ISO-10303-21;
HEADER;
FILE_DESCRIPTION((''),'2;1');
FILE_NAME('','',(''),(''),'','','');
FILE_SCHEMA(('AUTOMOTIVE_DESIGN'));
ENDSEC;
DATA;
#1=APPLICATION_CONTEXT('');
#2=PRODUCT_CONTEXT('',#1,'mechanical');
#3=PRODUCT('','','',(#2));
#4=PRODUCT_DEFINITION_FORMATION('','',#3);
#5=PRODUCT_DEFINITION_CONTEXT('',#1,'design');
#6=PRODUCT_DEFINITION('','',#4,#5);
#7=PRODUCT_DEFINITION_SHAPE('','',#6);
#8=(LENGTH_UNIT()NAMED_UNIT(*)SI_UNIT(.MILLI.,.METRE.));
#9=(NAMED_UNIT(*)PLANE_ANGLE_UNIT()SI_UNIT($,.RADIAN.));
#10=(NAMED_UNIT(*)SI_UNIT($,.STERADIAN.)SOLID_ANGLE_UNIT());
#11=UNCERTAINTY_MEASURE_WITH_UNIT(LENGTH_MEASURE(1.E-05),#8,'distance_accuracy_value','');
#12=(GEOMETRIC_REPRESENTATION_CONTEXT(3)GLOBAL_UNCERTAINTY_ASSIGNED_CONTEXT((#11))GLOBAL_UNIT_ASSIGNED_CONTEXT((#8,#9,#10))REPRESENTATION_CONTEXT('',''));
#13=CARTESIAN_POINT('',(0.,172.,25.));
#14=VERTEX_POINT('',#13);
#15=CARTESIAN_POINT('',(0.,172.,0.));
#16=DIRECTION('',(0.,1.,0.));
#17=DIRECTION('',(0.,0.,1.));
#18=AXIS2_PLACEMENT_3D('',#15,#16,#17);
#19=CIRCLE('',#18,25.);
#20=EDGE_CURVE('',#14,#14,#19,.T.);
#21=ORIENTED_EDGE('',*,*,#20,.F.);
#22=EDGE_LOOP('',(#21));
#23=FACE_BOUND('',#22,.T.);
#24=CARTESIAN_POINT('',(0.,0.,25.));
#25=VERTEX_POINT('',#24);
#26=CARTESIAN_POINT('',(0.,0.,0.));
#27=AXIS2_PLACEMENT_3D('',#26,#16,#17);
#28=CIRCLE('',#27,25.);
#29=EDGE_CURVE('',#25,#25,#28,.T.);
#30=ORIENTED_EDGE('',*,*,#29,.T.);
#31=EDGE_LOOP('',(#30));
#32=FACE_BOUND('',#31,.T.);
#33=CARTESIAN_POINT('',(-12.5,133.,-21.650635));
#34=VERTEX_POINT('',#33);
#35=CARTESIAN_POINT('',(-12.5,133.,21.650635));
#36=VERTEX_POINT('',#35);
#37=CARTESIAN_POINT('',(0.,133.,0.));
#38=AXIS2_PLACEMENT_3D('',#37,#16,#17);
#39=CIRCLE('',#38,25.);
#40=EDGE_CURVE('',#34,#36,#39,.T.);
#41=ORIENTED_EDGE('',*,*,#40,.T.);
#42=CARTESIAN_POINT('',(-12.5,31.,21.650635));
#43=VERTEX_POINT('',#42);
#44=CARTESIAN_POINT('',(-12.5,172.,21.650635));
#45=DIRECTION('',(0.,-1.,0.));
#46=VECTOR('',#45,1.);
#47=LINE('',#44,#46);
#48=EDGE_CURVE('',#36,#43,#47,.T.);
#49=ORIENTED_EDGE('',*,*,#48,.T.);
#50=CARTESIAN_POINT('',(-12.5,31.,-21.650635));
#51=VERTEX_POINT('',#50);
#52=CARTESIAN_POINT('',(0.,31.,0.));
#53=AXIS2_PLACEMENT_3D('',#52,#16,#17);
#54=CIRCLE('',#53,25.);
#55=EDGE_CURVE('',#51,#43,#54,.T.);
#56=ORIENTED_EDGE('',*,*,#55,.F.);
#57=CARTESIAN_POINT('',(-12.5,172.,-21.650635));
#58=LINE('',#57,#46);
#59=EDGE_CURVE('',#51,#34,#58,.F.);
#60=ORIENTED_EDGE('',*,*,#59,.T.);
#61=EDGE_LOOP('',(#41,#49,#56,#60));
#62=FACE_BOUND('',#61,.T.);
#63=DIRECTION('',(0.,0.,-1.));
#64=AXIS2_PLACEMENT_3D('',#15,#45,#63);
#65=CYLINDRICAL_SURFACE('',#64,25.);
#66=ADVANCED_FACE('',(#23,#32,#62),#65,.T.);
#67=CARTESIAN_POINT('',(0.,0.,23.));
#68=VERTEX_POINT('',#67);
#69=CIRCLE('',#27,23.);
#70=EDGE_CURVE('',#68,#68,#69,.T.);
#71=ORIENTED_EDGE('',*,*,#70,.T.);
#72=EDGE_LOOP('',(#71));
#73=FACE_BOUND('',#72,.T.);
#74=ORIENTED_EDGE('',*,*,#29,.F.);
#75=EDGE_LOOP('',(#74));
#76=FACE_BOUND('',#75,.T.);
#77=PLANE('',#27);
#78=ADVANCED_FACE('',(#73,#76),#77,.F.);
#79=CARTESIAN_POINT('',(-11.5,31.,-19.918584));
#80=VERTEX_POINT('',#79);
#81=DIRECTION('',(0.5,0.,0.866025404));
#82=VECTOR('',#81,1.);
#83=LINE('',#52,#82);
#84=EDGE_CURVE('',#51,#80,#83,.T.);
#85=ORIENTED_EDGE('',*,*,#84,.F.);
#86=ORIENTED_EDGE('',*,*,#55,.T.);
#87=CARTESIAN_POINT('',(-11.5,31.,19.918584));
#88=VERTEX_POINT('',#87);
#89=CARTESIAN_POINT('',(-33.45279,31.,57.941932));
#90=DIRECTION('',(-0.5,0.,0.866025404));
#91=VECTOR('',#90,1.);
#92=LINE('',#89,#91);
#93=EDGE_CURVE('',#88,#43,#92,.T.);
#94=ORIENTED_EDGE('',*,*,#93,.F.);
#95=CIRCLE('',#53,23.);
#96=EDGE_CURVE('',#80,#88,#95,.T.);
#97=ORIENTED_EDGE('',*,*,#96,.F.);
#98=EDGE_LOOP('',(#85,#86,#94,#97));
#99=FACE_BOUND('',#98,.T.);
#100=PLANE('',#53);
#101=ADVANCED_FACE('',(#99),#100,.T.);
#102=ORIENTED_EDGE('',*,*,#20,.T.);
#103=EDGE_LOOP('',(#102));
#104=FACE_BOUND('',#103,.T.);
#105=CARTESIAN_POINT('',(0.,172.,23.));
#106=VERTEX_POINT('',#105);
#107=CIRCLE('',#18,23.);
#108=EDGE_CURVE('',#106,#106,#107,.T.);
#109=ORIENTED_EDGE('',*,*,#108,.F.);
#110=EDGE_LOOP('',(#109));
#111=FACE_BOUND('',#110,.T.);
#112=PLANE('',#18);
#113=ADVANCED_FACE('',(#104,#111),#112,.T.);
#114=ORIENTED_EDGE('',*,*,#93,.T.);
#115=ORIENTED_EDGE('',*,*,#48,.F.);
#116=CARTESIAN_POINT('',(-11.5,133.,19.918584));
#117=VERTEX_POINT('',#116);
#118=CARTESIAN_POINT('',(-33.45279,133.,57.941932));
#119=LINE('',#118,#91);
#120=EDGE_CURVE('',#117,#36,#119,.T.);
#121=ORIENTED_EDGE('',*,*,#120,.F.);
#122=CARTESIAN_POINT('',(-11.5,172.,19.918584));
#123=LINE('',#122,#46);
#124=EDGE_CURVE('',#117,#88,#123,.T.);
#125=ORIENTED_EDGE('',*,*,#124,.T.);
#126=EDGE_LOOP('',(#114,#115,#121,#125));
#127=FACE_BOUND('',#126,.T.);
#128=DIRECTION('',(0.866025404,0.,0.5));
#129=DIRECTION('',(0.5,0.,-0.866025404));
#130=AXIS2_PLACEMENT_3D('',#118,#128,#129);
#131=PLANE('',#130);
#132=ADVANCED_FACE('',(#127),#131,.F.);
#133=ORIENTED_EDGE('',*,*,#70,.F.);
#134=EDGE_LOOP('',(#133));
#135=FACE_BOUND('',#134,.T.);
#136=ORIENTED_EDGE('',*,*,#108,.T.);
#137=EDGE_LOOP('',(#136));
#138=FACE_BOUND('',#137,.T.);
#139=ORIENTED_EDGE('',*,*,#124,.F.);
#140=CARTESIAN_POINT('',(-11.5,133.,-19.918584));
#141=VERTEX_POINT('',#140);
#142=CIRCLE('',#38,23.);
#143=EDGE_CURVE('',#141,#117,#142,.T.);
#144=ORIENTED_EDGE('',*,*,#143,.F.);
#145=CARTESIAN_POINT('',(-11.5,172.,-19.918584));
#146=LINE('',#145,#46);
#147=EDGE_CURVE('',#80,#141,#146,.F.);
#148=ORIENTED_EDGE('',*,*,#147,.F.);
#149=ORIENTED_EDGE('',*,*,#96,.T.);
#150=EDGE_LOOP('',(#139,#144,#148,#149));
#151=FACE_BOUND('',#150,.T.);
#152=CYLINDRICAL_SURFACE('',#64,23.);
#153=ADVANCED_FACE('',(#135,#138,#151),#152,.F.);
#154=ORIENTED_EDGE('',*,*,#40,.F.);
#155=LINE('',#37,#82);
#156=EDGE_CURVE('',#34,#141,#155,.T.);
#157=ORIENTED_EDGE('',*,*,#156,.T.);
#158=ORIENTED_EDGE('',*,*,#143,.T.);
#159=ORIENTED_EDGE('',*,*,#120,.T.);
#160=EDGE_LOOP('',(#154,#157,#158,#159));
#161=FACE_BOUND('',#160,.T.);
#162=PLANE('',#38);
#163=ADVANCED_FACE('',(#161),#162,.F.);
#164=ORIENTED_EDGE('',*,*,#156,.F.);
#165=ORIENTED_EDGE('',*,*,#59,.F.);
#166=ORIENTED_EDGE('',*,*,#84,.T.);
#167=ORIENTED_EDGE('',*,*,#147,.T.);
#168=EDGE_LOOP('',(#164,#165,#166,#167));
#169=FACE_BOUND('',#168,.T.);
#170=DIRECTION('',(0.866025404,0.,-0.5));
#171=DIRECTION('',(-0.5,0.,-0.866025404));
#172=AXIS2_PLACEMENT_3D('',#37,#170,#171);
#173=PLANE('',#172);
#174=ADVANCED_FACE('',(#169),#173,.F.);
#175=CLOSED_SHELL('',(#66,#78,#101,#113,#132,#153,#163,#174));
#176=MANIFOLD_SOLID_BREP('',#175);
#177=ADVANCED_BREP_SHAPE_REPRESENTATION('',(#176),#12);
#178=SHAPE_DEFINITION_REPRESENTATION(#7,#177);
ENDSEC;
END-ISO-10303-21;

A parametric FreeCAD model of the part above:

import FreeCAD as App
import Part
import Sketcher

V = App.Vector
Q = App.Units.Quantity

doc = App.newDocument("Part")
body = doc.addObject("PartDesign::Body", "Body")

# Sketch on XZ plane
sketch1 = body.newObject("Sketcher::SketchObject", "Sketch")
sketch1.AttachmentSupport = (doc.getObject("XZ_Plane"), [""])
sketch1.MapMode = "FlatFace"
sketch1.addGeometry([
    Part.Circle(V(0, 0, 0), V(0, 0, 1), 25),
    Part.Circle(V(0, 0, 0), V(0, 0, 1), 23),
], False)
sketch1.addConstraint([
    Sketcher.Constraint("Coincident", 0, 3, -1, 1),
    Sketcher.Constraint("Coincident", 1, 3, -1, 1),
    Sketcher.Constraint("Diameter", 0, Q("50 mm")),
    Sketcher.Constraint("Diameter", 1, Q("46 mm")),
])
pad1 = body.newObject("PartDesign::Pad", "Pad")
pad1.Profile = sketch1
pad1.Length = 172
pad1.Reversed = True

# Sketch on XZ plane
sketch2 = body.newObject("Sketcher::SketchObject", "Sketch001")
sketch2.AttachmentSupport = (doc.getObject("XZ_Plane"), [""])
sketch2.MapMode = "FlatFace"
sketch2.AttachmentOffset = App.Placement(V(0, 0, -31), App.Rotation())
sketch2.addGeometry([
    Part.LineSegment(V(-29.614576, -51.293951, 0), V(0, 0, 0)),
    Part.LineSegment(V(0, 0, 0), V(-33.45279, 57.941932, 0)),
    Part.LineSegment(V(-33.45279, 57.941932, 0), V(-29.614576, -51.293951, 0)),
], False)
sketch2.addConstraint([
    Sketcher.Constraint("Coincident", 0, 2, 1, 1),
    Sketcher.Constraint("Coincident", 1, 2, 2, 1),
    Sketcher.Constraint("Coincident", 2, 2, 0, 1),
    Sketcher.Constraint("Coincident", 0, 2, -1, 1),
    Sketcher.Constraint("Angle", 0, Q("60 deg")),
    Sketcher.Constraint("Angle", 1, Q("120 deg")),
    Sketcher.Constraint("Distance", 1, Q("66.90558 mm")),
    Sketcher.Constraint("DistanceY", 2, 2, -1, 1, Q("51.293951 mm")),
])
pocket1 = body.newObject("PartDesign::Pocket", "Pocket")
pocket1.Profile = sketch2
pocket1.Length = 102

doc.recompute()
